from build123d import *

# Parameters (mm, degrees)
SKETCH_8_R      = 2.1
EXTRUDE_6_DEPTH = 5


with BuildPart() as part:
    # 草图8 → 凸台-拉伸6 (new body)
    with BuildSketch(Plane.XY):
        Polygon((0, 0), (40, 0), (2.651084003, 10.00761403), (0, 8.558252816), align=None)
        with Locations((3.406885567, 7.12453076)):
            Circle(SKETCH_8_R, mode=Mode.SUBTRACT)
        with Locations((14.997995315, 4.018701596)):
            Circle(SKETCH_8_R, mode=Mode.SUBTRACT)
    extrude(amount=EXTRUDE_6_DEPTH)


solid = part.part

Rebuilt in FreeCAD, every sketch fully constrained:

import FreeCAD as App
import Part
import Sketcher
Q = App.Units.Quantity

doc = App.newDocument("Part")
body = doc.addObject("PartDesign::Body", "Body")

sketch1 = body.newObject("Sketcher::SketchObject", "Sketch")
sketch1.AttachmentSupport = (doc.getObject("XY_Plane"), [""])
sketch1.MapMode = "FlatFace"
sketch1.addGeometry([
    Part.LineSegment(App.Vector(0, 0, 0), App.Vector(40, 0, 0)),
    Part.LineSegment(App.Vector(40, 0, 0), App.Vector(2.7, 10, 0)),
    Part.LineSegment(App.Vector(2.7, 10, 0), App.Vector(0, 8.6, 0)),
    Part.LineSegment(App.Vector(0, 8.6, 0), App.Vector(0, 0, 0)),
    Part.Circle(App.Vector(15, 4, 0), App.Vector(0, 0, 1), 2.1),
    Part.Circle(App.Vector(3.4, 7.1, 0), App.Vector(0, 0, 1), 2.1),
], False)
sketch1.addConstraint([
    Sketcher.Constraint("Coincident", 0, 2, 1, 1),
    Sketcher.Constraint("Coincident", 1, 2, 2, 1),
    Sketcher.Constraint("Coincident", 2, 2, 3, 1),
    Sketcher.Constraint("Coincident", 3, 2, 0, 1),
    Sketcher.Constraint("Horizontal", 0),
    Sketcher.Constraint("Vertical", 3),
    Sketcher.Constraint("Coincident", 3, 2, -1, 1),
    Sketcher.Constraint("Equal", 4, 5),
    Sketcher.Constraint("Diameter", 4, 4.2),
    Sketcher.Constraint("DistanceX", 0, 1, 0, 2, 40.0),
    Sketcher.Constraint("Angle", 1, Q("164.999997 deg")),
    Sketcher.Constraint("DistanceY", -1, 1, 4, 3, 4.018702),
    Sketcher.Constraint("DistanceX", 1, 2, 5, 3, 0.755802),
    Sketcher.Constraint("DistanceY", 3, 2, 3, 1, 8.558253),
    Sketcher.Constraint("DistanceY", -1, 1, 5, 3, 7.124531),
    Sketcher.Constraint("DistanceX", 5, 3, 4, 3, 11.59111),
    Sketcher.Constraint("DistanceY", 2, 2, 1, 2, 1.449361),
])
pad1 = body.newObject("PartDesign::Pad", "Pad")
pad1.Profile = sketch1
pad1.Length = 5

doc.recompute()
